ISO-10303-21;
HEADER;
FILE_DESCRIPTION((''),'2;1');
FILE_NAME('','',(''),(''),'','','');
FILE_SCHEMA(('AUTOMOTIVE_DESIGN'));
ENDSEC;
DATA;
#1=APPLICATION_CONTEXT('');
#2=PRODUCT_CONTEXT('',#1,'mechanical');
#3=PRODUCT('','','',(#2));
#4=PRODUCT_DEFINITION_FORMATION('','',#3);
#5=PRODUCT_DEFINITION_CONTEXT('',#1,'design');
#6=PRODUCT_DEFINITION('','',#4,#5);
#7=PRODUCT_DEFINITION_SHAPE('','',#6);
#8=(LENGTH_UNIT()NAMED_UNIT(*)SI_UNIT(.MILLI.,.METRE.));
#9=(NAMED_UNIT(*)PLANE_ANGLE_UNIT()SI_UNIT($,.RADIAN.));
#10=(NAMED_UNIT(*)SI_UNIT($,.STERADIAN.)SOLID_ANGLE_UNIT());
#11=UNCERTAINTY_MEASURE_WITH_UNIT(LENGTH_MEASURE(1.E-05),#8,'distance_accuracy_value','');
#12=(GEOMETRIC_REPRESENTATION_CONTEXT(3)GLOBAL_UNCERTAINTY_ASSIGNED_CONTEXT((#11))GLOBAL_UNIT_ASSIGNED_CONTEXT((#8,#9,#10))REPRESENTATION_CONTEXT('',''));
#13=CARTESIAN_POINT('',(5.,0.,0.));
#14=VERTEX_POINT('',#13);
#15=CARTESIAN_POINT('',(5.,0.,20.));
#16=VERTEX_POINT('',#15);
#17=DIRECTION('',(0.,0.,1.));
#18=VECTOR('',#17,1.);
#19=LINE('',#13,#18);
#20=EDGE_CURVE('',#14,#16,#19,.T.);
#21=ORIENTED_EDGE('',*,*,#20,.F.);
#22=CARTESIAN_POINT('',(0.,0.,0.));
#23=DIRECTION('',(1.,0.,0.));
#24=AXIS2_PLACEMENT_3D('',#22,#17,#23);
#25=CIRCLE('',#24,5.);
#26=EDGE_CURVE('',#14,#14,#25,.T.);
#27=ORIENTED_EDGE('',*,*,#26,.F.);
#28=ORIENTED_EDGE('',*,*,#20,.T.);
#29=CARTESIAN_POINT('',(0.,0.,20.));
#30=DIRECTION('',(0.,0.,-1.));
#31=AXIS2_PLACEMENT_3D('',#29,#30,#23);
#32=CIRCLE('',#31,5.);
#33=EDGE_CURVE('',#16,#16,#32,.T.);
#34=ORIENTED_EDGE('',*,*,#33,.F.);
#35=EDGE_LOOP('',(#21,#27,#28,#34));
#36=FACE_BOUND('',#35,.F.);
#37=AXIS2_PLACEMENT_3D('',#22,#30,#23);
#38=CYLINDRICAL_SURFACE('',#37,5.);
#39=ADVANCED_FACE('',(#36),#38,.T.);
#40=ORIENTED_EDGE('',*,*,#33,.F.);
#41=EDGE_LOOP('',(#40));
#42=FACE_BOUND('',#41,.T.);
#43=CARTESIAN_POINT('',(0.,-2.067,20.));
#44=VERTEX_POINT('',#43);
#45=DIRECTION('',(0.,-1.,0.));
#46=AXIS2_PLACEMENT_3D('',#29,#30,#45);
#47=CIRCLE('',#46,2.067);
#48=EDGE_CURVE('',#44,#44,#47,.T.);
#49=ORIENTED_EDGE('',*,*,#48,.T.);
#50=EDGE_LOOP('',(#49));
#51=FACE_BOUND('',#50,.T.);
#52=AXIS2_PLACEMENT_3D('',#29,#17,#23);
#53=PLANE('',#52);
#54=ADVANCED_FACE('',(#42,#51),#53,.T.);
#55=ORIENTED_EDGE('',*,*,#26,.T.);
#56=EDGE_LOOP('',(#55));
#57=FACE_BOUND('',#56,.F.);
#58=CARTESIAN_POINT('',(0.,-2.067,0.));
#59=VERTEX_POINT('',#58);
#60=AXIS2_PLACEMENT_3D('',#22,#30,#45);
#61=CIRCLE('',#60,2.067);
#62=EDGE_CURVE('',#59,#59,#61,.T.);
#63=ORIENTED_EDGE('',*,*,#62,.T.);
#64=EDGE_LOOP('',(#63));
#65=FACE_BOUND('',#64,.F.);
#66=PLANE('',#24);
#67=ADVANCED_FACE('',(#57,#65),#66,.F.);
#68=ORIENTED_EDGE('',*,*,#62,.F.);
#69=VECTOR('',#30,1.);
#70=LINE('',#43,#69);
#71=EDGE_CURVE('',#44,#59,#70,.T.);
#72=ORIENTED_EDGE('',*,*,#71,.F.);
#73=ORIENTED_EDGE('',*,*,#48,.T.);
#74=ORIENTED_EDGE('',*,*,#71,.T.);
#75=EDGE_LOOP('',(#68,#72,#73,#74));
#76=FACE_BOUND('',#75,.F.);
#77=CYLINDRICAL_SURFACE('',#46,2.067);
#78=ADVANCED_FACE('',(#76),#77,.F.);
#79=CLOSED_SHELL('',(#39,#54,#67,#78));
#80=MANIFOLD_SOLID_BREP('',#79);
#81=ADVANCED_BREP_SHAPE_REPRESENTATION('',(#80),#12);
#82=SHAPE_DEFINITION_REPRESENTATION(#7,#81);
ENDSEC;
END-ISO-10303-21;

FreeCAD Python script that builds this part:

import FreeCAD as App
import Part
import Sketcher
Q = App.Units.Quantity

doc = App.newDocument("Part")
params = doc.addObject("Spreadsheet::Sheet", "Params")
for row, (alias, value) in enumerate([
    ("sketch1_diameter", "10 mm"),
    ("pad1_length", "20 mm"),
    ("hole_diameter", "4.134 mm"),
], start=1):
    params.set(f"A{row}", alias)
    params.set(f"B{row}", "=" + value)
    params.setAlias(f"B{row}", alias)

body = doc.addObject("PartDesign::Body", "Body")

# Sketch on XY plane
sketch1 = doc.addObject("Sketcher::SketchObject", "Sketch")
body.addObject(sketch1)
sketch1.AttachmentSupport = (doc.XY_Plane, [""])
sketch1.MapMode = "FlatFace"
sketch1.addGeometry(Part.Circle(App.Vector(0, 0, 0), App.Vector(0, 0, 1), 5), False)
sketch1.addConstraint(Sketcher.Constraint("Coincident", 0, 3, -1, 1))
sketch1.addConstraint(Sketcher.Constraint("Diameter", 0, Q("10 mm")))
sketch1.setExpression("Constraints[1]", "Params.sketch1_diameter")
pad1 = doc.addObject("PartDesign::Pad", "Pad")
body.addObject(pad1)
pad1.Profile = sketch1
pad1.setExpression("Length", "Params.pad1_length")

# Sketch on XY plane
sketch2 = doc.addObject("Sketcher::SketchObject", "Sketch001")
body.addObject(sketch2)
sketch2.AttachmentSupport = (doc.XY_Plane, [""])
sketch2.MapMode = "FlatFace"
sketch2.AttachmentOffset = App.Placement(App.Vector(0, 0, 20), App.Rotation())
sketch2.addGeometry(Part.Circle(App.Vector(0, 0, 0), App.Vector(0, 0, 1), 2.1), False)
sketch2.addConstraint(Sketcher.Constraint("Coincident", 0, 3, -1, 1))
sketch2.addConstraint(Sketcher.Constraint("Diameter", 0, Q("4.134 mm")))
doc.recompute()
hole = doc.addObject("PartDesign::Hole", "Hole")
body.addObject(hole)
hole.Profile = sketch2
hole.ThreadType = "None"
hole.setExpression("Diameter", "Params.hole_diameter")
hole.DepthType = "ThroughAll"

doc.recompute()
